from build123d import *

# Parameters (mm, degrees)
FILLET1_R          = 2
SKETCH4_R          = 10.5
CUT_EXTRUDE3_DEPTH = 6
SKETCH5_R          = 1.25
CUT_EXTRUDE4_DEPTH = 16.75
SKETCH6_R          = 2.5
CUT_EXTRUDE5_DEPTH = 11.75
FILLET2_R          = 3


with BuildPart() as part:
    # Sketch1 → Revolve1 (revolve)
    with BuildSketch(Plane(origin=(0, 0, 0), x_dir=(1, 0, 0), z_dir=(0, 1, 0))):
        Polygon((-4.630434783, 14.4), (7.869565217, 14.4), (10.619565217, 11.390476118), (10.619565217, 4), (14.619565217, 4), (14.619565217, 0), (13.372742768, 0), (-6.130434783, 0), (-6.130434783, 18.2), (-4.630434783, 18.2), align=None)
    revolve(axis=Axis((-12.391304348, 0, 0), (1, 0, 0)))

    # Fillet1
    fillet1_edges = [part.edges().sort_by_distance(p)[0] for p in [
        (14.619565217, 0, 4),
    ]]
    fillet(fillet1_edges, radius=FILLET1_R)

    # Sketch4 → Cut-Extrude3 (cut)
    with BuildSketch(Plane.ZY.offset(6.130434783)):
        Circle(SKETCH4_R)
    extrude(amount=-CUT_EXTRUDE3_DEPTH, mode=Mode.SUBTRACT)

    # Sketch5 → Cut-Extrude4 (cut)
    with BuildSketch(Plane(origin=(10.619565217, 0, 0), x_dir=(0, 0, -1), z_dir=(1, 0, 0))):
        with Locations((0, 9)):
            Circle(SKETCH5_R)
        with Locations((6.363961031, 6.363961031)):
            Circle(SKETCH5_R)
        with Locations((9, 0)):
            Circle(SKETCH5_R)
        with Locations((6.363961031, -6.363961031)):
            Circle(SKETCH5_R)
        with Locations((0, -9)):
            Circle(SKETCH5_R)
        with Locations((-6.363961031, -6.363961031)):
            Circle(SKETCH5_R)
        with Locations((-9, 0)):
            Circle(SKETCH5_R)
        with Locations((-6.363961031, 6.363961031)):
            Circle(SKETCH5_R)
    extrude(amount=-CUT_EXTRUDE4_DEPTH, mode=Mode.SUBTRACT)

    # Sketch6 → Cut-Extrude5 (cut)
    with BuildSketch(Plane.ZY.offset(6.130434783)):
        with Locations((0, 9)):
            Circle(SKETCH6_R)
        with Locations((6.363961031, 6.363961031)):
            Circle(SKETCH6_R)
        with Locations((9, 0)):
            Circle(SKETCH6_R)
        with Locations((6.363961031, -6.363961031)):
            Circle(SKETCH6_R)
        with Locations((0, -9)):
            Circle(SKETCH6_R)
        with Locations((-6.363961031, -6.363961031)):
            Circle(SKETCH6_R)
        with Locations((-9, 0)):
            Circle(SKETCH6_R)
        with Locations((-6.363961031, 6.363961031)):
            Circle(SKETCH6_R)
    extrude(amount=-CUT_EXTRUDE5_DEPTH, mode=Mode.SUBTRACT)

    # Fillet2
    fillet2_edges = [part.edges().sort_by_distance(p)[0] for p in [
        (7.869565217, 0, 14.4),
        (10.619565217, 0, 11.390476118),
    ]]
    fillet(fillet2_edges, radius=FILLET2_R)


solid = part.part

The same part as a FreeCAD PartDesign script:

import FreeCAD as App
import Part
import Sketcher
from FreeCAD import Vector
Q = App.Units.Quantity


def edges_at(feature, points):
    """Names of the edges that pass closest to the given points."""
    edges = feature.Shape.Edges
    near = lambda p: min(range(len(edges)), key=lambda i: edges[i].distToShape(Part.Vertex(*p))[0])
    return sorted({f"Edge{near(p) + 1}" for p in points})

doc = App.newDocument("Part")
body = doc.addObject("PartDesign::Body", "Body")

sketch1 = doc.addObject("Sketcher::SketchObject", "Sketch")
body.addObject(sketch1)
sketch1.AttachmentSupport = (doc.XZ_Plane, [""])
sketch1.MapMode = "FlatFace"
sketch1.addGeometry(Part.LineSegment(Vector(7.9, -14.4, 0), Vector(-4.6, -14.4, 0)), False)
sketch1.addGeometry(Part.LineSegment(Vector(-4.6, -14.4, 0), Vector(-4.6, -18.2, 0)), False)
sketch1.addGeometry(Part.LineSegment(Vector(-4.6, -18.2, 0), Vector(-6.1, -18.2, 0)), False)
sketch1.addGeometry(Part.LineSegment(Vector(-6.1, -18.2, 0), Vector(-6.1, 0, 0)), False)
sketch1.addGeometry(Part.LineSegment(Vector(-6.1, 0, 0), Vector(14.6, 0, 0)), False)
sketch1.addGeometry(Part.LineSegment(Vector(14.6, 0, 0), Vector(14.6, -4, 0)), False)
sketch1.addGeometry(Part.LineSegment(Vector(14.6, -4, 0), Vector(10.6, -4, 0)), False)
sketch1.addGeometry(Part.LineSegment(Vector(10.6, -4, 0), Vector(10.6, -11.4, 0)), False)
sketch1.addGeometry(Part.LineSegment(Vector(10.6, -11.4, 0), Vector(7.9, -14.4, 0)), False)
sketch1.addConstraint(Sketcher.Constraint("Coincident", 0, 2, 1, 1))
sketch1.addConstraint(Sketcher.Constraint("Coincident", 1, 2, 2, 1))
sketch1.addConstraint(Sketcher.Constraint("Coincident", 2, 2, 3, 1))
sketch1.addConstraint(Sketcher.Constraint("Coincident", 3, 2, 4, 1))
sketch1.addConstraint(Sketcher.Constraint("Coincident", 4, 2, 5, 1))
sketch1.addConstraint(Sketcher.Constraint("Coincident", 5, 2, 6, 1))
sketch1.addConstraint(Sketcher.Constraint("Coincident", 6, 2, 7, 1))
sketch1.addConstraint(Sketcher.Constraint("Coincident", 7, 2, 8, 1))
sketch1.addConstraint(Sketcher.Constraint("Coincident", 8, 2, 0, 1))
sketch1.addConstraint(Sketcher.Constraint("Horizontal", 0))
sketch1.addConstraint(Sketcher.Constraint("Vertical", 1))
sketch1.addConstraint(Sketcher.Constraint("Horizontal", 2))
sketch1.addConstraint(Sketcher.Constraint("Vertical", 3))
sketch1.addConstraint(Sketcher.Constraint("Horizontal", 4))
sketch1.addConstraint(Sketcher.Constraint("Vertical", 5))
sketch1.addConstraint(Sketcher.Constraint("Horizontal", 6))
sketch1.addConstraint(Sketcher.Constraint("Vertical", 7))
sketch1.addConstraint(Sketcher.Constraint("PointOnObject", 3, 2, -1))
sketch1.addConstraint(Sketcher.Constraint("Equal", 6, 5))
sketch1.addConstraint(Sketcher.Constraint("DistanceX", 6, 2, 6, 1, Q("4 mm")))
sketch1.addConstraint(Sketcher.Constraint("DistanceX", 0, 2, 0, 1, Q("12.5 mm")))
sketch1.addConstraint(Sketcher.Constraint("DistanceX", 2, 2, 2, 1, Q("1.5 mm")))
sketch1.addConstraint(Sketcher.Constraint("DistanceY", 1, 2, 1, 1, Q("3.8 mm")))
sketch1.addConstraint(Sketcher.Constraint("DistanceY", 3, 1, 3, 2, Q("18.2 mm")))
sketch1.addConstraint(Sketcher.Constraint("DistanceX", 4, 1, 4, 2, Q("20.75 mm")))
sketch1.addConstraint(Sketcher.Constraint("Angle", 8, Q("-132.42 deg")))
sketch1.addConstraint(Sketcher.Constraint("DistanceX", 0, 2, -1, 1, Q("4.630435 mm")))
revolution = doc.addObject("PartDesign::Revolution", "Revolution")
body.addObject(revolution)
revolution.Profile = sketch1
revolution.ReferenceAxis = (sketch1, ["H_Axis"])
revolution.Angle = 360
doc.recompute()

fillet = doc.addObject("PartDesign::Fillet", "Fillet")
body.addObject(fillet)
fillet.Base = (revolution, edges_at(revolution, [(14.62, 0, 4)]))
fillet.Radius = 2

sketch2 = doc.addObject("Sketcher::SketchObject", "Sketch001")
body.addObject(sketch2)
sketch2.AttachmentSupport = (doc.YZ_Plane, [""])
sketch2.MapMode = "FlatFace"
sketch2.AttachmentOffset = App.Placement(Vector(0, 0, -6.130435), App.Rotation())
sketch2.addGeometry(Part.Circle(Vector(0, 0, 0), Vector(0, 0, 1), 10), False)
sketch2.addConstraint(Sketcher.Constraint("Coincident", 0, 3, -1, 1))
sketch2.addConstraint(Sketcher.Constraint("Diameter", 0, Q("21 mm")))
pocket1 = doc.addObject("PartDesign::Pocket", "Pocket")
body.addObject(pocket1)
pocket1.Profile = sketch2
pocket1.Length = 6
pocket1.Reversed = True

sketch3 = doc.addObject("Sketcher::SketchObject", "Sketch002")
body.addObject(sketch3)
sketch3.AttachmentSupport = (doc.YZ_Plane, [""])
sketch3.MapMode = "FlatFace"
sketch3.AttachmentOffset = App.Placement(Vector(0, 0, 10.619565), App.Rotation())
sketch3.addGeometry(Part.Circle(Vector(9, 0, 0), Vector(0, 0, 1), 1.2), False)
sketch3.addGeometry(Part.Circle(Vector(6.4, -6.4, 0), Vector(0, 0, 1), 1.2), False)
sketch3.addGeometry(Part.Circle(Vector(0, -9, 0), Vector(0, 0, 1), 1.2), False)
sketch3.addGeometry(Part.Circle(Vector(-6.4, -6.4, 0), Vector(0, 0, 1), 1.2), False)
sketch3.addGeometry(Part.Circle(Vector(-9, 0, 0), Vector(0, 0, 1), 1.2), False)
sketch3.addGeometry(Part.Circle(Vector(-6.4, 6.4, 0), Vector(0, 0, 1), 1.2), False)
sketch3.addGeometry(Part.Circle(Vector(0, 9, 0), Vector(0, 0, 1), 1.2), False)
sketch3.addGeometry(Part.Circle(Vector(6.4, 6.4, 0), Vector(0, 0, 1), 1.2), False)
sketch3.addConstraint(Sketcher.Constraint("Equal", 0, 1))
sketch3.addConstraint(Sketcher.Constraint("Equal", 1, 2))
sketch3.addConstraint(Sketcher.Constraint("Equal", 2, 3))
sketch3.addConstraint(Sketcher.Constraint("Equal", 3, 4))
sketch3.addConstraint(Sketcher.Constraint("Equal", 4, 5))
sketch3.addConstraint(Sketcher.Constraint("Equal", 5, 6))
sketch3.addConstraint(Sketcher.Constraint("Equal", 6, 7))
sketch3.addConstraint(Sketcher.Constraint("Symmetric", 0, 3, 4, 3, -1, 1))
sketch3.addConstraint(Sketcher.Constraint("Symmetric", 1, 3, 5, 3, -1, 1))
sketch3.addConstraint(Sketcher.Constraint("Symmetric", 2, 3, 6, 3, -1, 1))
sketch3.addConstraint(Sketcher.Constraint("Symmetric", 3, 3, 7, 3, -1, 1))
sketch3.addConstraint(Sketcher.Constraint("Symmetric", 1, 3, 3, 3, -2))
sketch3.addConstraint(Sketcher.Constraint("PointOnObject", 0, 3, -1))
sketch3.addConstraint(Sketcher.Constraint("PointOnObject", 2, 3, -2))
sketch3.addConstraint(Sketcher.Constraint("Diameter", 0, Q("2.5 mm")))
sketch3.addConstraint(Sketcher.Constraint("DistanceX", -1, 1, 0, 3, Q("9 mm")))
sketch3.addConstraint(Sketcher.Constraint("DistanceY", 2, 3, -1, 1, Q("9 mm")))
sketch3.addConstraint(Sketcher.Constraint("DistanceX", -1, 1, 1, 3, Q("6.363961 mm")))
sketch3.addConstraint(Sketcher.Constraint("DistanceY", 1, 3, -1, 1, Q("6.363961 mm")))
pocket2 = doc.addObject("PartDesign::Pocket", "Pocket001")
body.addObject(pocket2)
pocket2.Profile = sketch3
pocket2.Length = 16.75

sketch4 = doc.addObject("Sketcher::SketchObject", "Sketch003")
body.addObject(sketch4)
sketch4.AttachmentSupport = (doc.YZ_Plane, [""])
sketch4.MapMode = "FlatFace"
sketch4.AttachmentOffset = App.Placement(Vector(0, 0, -6.130435), App.Rotation())
sketch4.addGeometry(Part.Circle(Vector(9, 0, 0), Vector(0, 0, 1), 2.5), False)
sketch4.addGeometry(Part.Circle(Vector(6.4, 6.4, 0), Vector(0, 0, 1), 2.5), False)
sketch4.addGeometry(Part.Circle(Vector(0, 9, 0), Vector(0, 0, 1), 2.5), False)
sketch4.addGeometry(Part.Circle(Vector(-6.4, 6.4, 0), Vector(0, 0, 1), 2.5), False)
sketch4.addGeometry(Part.Circle(Vector(-9, 0, 0), Vector(0, 0, 1), 2.5), False)
sketch4.addGeometry(Part.Circle(Vector(-6.4, -6.4, 0), Vector(0, 0, 1), 2.5), False)
sketch4.addGeometry(Part.Circle(Vector(0, -9, 0), Vector(0, 0, 1), 2.5), False)
sketch4.addGeometry(Part.Circle(Vector(6.4, -6.4, 0), Vector(0, 0, 1), 2.5), False)
sketch4.addConstraint(Sketcher.Constraint("Equal", 0, 1))
sketch4.addConstraint(Sketcher.Constraint("Equal", 1, 2))
sketch4.addConstraint(Sketcher.Constraint("Equal", 2, 3))
sketch4.addConstraint(Sketcher.Constraint("Equal", 3, 4))
sketch4.addConstraint(Sketcher.Constraint("Equal", 4, 5))
sketch4.addConstraint(Sketcher.Constraint("Equal", 5, 6))
sketch4.addConstraint(Sketcher.Constraint("Equal", 6, 7))
sketch4.addConstraint(Sketcher.Constraint("Symmetric", 0, 3, 4, 3, -1, 1))
sketch4.addConstraint(Sketcher.Constraint("Symmetric", 1, 3, 5, 3, -1, 1))
sketch4.addConstraint(Sketcher.Constraint("Symmetric", 2, 3, 6, 3, -1, 1))
sketch4.addConstraint(Sketcher.Constraint("Symmetric", 3, 3, 7, 3, -1, 1))
sketch4.addConstraint(Sketcher.Constraint("Symmetric", 1, 3, 3, 3, -2))
sketch4.addConstraint(Sketcher.Constraint("PointOnObject", 0, 3, -1))
sketch4.addConstraint(Sketcher.Constraint("PointOnObject", 2, 3, -2))
sketch4.addConstraint(Sketcher.Constraint("Diameter", 0, Q("5 mm")))
sketch4.addConstraint(Sketcher.Constraint("DistanceX", -1, 1, 0, 3, Q("9 mm")))
sketch4.addConstraint(Sketcher.Constraint("DistanceY", -1, 1, 2, 3, Q("9 mm")))
sketch4.addConstraint(Sketcher.Constraint("DistanceX", -1, 1, 1, 3, Q("6.363961 mm")))
sketch4.addConstraint(Sketcher.Constraint("DistanceY", -1, 1, 1, 3, Q("6.363961 mm")))
pocket3 = doc.addObject("PartDesign::Pocket", "Pocket002")
body.addObject(pocket3)
pocket3.Profile = sketch4
pocket3.Length = 11.75
pocket3.Reversed = True
doc.recompute()

fillet2 = doc.addObject("PartDesign::Fillet", "Fillet001")
body.addObject(fillet2)
fillet2.Base = (pocket3, edges_at(pocket3, [(7.87, 0, 14.4), (10.62, 0, 11.39)]))
fillet2.Radius = 3

doc.recompute()
